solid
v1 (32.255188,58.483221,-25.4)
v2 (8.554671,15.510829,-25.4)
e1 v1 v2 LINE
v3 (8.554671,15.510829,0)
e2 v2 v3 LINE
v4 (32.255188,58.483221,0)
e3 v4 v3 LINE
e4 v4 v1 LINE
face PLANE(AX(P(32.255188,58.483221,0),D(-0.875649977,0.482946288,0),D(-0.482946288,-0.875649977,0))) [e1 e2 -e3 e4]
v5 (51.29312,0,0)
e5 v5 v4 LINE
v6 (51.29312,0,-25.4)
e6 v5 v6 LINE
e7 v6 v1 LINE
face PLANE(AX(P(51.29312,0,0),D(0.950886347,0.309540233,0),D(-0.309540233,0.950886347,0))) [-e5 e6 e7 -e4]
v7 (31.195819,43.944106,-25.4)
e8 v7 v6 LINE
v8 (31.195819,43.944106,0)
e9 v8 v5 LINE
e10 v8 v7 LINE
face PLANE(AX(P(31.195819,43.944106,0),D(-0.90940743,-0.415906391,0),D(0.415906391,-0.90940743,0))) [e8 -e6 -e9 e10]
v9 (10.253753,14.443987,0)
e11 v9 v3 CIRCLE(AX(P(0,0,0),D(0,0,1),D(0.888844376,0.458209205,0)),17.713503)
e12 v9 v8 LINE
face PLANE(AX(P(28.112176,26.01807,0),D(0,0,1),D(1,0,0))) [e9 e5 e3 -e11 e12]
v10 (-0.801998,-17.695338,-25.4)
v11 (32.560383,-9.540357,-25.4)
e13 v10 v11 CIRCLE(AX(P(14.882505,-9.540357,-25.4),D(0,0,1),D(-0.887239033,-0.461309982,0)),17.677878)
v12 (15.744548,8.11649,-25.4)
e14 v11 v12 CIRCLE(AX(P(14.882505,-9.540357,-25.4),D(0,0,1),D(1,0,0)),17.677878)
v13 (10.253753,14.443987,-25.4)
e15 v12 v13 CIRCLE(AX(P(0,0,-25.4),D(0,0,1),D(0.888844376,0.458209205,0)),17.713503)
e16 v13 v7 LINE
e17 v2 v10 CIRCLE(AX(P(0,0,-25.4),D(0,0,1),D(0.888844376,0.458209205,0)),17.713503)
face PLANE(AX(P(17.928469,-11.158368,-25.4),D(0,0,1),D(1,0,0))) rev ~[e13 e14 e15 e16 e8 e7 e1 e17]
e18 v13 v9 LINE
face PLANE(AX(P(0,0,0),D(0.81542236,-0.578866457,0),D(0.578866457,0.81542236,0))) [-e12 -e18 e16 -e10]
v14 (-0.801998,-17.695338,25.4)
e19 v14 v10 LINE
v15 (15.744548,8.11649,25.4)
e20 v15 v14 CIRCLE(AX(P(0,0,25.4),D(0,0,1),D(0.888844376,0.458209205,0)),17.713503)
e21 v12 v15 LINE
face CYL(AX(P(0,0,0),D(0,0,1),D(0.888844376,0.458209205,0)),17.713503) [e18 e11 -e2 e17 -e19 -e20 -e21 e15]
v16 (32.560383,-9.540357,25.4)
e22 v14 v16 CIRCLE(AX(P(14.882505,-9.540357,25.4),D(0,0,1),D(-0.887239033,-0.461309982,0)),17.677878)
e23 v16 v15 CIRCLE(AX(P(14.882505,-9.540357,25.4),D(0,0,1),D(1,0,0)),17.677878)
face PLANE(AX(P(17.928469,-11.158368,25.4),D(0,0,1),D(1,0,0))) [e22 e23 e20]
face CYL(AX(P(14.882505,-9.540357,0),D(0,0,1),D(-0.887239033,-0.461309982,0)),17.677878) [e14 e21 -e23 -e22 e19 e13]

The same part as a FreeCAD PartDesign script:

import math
import FreeCAD as App
import Part
import Sketcher

V = App.Vector
Q = App.Units.Quantity

doc = App.newDocument("Part")
body = doc.addObject("PartDesign::Body", "Body")

# Sketch on XY plane
sketch1 = doc.addObject("Sketcher::SketchObject", "Sketch")
body.addObject(sketch1)
sketch1.AttachmentSupport = (doc.XY_Plane, [""])
sketch1.MapMode = "FlatFace"
sketch1.addGeometry([
    Part.ArcOfCircle(Part.Circle(V(14.882505, -9.540357, 0), V(0, 0, 1), 17.677878), math.radians(-152.528329), math.radians(0)),
    Part.ArcOfCircle(Part.Circle(V(14.882505, -9.540357, 0), V(0, 0, 1), 17.677878), math.radians(0), math.radians(87.204925)),
    Part.ArcOfCircle(Part.Circle(V(0, 0, 0), V(0, 0, 1), 17.713503), math.radians(27.271611), math.radians(267.404984)),
], False)
sketch1.addConstraint([
    Sketcher.Constraint("Tangent", 0, 2, 1, 1),
    Sketcher.Constraint("Coincident", 1, 2, 2, 1),
    Sketcher.Constraint("Coincident", 2, 2, 0, 1),
    Sketcher.Constraint("Coincident", 2, 3, -1, 1),
    Sketcher.Constraint("Equal", 0, 1),
    Sketcher.Constraint("Horizontal", 1, 3, 0, 2),
    Sketcher.Constraint("Radius", 0, 17.677878),
    Sketcher.Constraint("Radius", 2, 17.713503),
    Sketcher.Constraint("DistanceX", 2, 2, 0, 3, Q("0.6175001 in")),
    Sketcher.Constraint("DistanceX", 2, 2, -1, 1, 0.801998),
])
pad1 = doc.addObject("PartDesign::Pad", "Pad")
body.addObject(pad1)
pad1.Profile = sketch1
pad1.Length = Q("2 in")
pad1.Midplane = True

# Sketch on XY plane
sketch2 = doc.addObject("Sketcher::SketchObject", "Sketch001")
body.addObject(sketch2)
sketch2.AttachmentSupport = (doc.XY_Plane, [""])
sketch2.MapMode = "FlatFace"
sketch2.addGeometry([
    Part.LineSegment(V(0, 0, 0), V(31.195819, 43.944106, 0)),
    Part.LineSegment(V(31.195819, 43.944106, 0), V(51.29312, 0, 0)),
    Part.LineSegment(V(51.29312, 0, 0), V(32.255188, 58.483221, 0)),
    Part.LineSegment(V(32.255188, 58.483221, 0), V(0, 0, 0)),
], False)
sketch2.addConstraint([
    Sketcher.Constraint("Coincident", 0, 2, 1, 1),
    Sketcher.Constraint("Coincident", 1, 2, 2, 1),
    Sketcher.Constraint("Coincident", 2, 2, 3, 1),
    Sketcher.Constraint("Coincident", 3, 2, 0, 1),
    Sketcher.Constraint("Coincident", 3, 2, -1, 1),
    Sketcher.Constraint("PointOnObject", 1, 2, -1),
    Sketcher.Constraint("Distance", 2, 61.503902),
    Sketcher.Constraint("DistanceX", 0, 2, 1, 2, 20.0973),
    Sketcher.Constraint("Distance", 0, 53.89122),
    Sketcher.Constraint("Distance", 1, 48.321692),
    Sketcher.Constraint("DistanceY", -1, 1, 2, 2, 58.483221),
])
pad2 = doc.addObject("PartDesign::Pad", "Pad001")
body.addObject(pad2)
pad2.Profile = sketch2
pad2.Length = Q("1 in")
pad2.Reversed = True

doc.recompute()
